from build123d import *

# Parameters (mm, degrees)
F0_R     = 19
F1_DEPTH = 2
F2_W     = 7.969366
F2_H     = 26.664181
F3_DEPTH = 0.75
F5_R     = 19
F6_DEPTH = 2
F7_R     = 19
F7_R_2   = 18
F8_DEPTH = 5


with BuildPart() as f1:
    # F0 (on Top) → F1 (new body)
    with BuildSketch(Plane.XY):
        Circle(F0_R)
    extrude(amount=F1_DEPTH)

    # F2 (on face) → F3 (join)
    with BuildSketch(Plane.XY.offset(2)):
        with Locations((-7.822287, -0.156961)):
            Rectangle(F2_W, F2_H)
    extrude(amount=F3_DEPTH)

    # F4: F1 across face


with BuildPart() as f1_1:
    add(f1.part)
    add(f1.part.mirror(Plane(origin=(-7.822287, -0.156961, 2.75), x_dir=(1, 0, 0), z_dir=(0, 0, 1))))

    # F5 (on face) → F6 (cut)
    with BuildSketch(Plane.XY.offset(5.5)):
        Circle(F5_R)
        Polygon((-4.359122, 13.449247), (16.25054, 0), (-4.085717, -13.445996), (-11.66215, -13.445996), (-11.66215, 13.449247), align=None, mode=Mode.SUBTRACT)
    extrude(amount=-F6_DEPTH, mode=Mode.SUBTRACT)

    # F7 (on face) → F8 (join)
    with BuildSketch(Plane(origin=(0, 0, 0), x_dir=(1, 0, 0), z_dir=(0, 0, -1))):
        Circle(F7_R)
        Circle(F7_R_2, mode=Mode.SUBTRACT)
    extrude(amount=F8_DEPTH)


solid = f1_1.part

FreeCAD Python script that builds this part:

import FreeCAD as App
import Part
import Sketcher
from FreeCAD import Vector
Q = App.Units.Quantity


def add_polygon(sketch, points):
    """Adds a closed chain of lines whose ends are joined by coincident constraints."""
    first, n = sketch.GeometryCount, len(points)
    for a, b in zip(points, points[1:] + points[:1]):
        sketch.addGeometry(Part.LineSegment(App.Vector(*a, 0), App.Vector(*b, 0)), False)
    for i in range(n):
        sketch.addConstraint(Sketcher.Constraint("Coincident", first + i, 2, first + (i + 1) % n, 1))

doc = App.newDocument("Part")
body = doc.addObject("PartDesign::Body", "Body")

sketch1 = body.newObject("Sketcher::SketchObject", "Sketch")
sketch1.AttachmentSupport = (doc.getObject("XY_Plane"), [""])
sketch1.MapMode = "FlatFace"
sketch1.addGeometry(Part.Circle(Vector(0, 0, 0), Vector(0, 0, 1), 19), False)
sketch1.addConstraint(Sketcher.Constraint("Coincident", 0, 3, -1, 1))
sketch1.addConstraint(Sketcher.Constraint("Diameter", 0, Q("38 mm")))
pad1 = body.newObject("PartDesign::Pad", "Pad")
pad1.Profile = sketch1
pad1.Length = 2

sketch2 = body.newObject("Sketcher::SketchObject", "Sketch001")
sketch2.AttachmentSupport = (doc.getObject("XY_Plane"), [""])
sketch2.MapMode = "FlatFace"
sketch2.AttachmentOffset = App.Placement(Vector(0, 0, 2), App.Rotation())
add_polygon(sketch2, [(-11.80697, 13.17513), (-11.80697, -13.489052), (-3.837604, -13.489052), (-3.837604, 13.17513)])
sketch2.addConstraint(Sketcher.Constraint("Vertical", 0))
sketch2.addConstraint(Sketcher.Constraint("Horizontal", 1))
sketch2.addConstraint(Sketcher.Constraint("Vertical", 2))
sketch2.addConstraint(Sketcher.Constraint("Horizontal", 3))
sketch2.addConstraint(Sketcher.Constraint("DistanceY", 0, 2, 0, 1, Q("26.664181 mm")))
sketch2.addConstraint(Sketcher.Constraint("DistanceX", 1, 1, 1, 2, Q("7.969366 mm")))
sketch2.addConstraint(Sketcher.Constraint("DistanceX", 0, 2, -1, 1, Q("11.80697 mm")))
sketch2.addConstraint(Sketcher.Constraint("DistanceY", 0, 2, -1, 1, Q("13.489052 mm")))
pad2 = body.newObject("PartDesign::Pad", "Pad001")
pad2.Profile = sketch2
pad2.Length = 0.75
body2 = doc.addObject("PartDesign::Body", "Body001")
doc.recompute()

body2.BaseFeature = body
doc.recompute()

mirroring = doc.addObject("Part::Mirroring", "Mirroring")
mirroring.Source = body
mirroring.Base = Vector(-7.822287, -0.156961, 2.75)
mirroring.Normal = Vector(0, 0, 1)
body3 = doc.addObject("PartDesign::Body", "Body002")
body3.BaseFeature = mirroring
boolean = body2.newObject("PartDesign::Boolean", "Boolean")
boolean.Type = "Fuse"
boolean.addObjects([body3])
doc.recompute()

sketch3 = body2.newObject("Sketcher::SketchObject", "Sketch002")
sketch3.AttachmentSupport = (doc.getObject("XY_Plane001"), [""])
sketch3.MapMode = "FlatFace"
sketch3.AttachmentOffset = App.Placement(Vector(0, 0, 5.5), App.Rotation())
sketch3.addGeometry(Part.Circle(Vector(0, 0, 0), Vector(0, 0, 1), 19), False)
add_polygon(sketch3, [(-11.66215, 13.449247), (-4.359122, 13.449247), (16.25054, 0), (-4.085717, -13.445996), (-11.66215, -13.445996)])
sketch3.addConstraint(Sketcher.Constraint("Horizontal", 1))
sketch3.addConstraint(Sketcher.Constraint("Horizontal", 4))
sketch3.addConstraint(Sketcher.Constraint("Vertical", 5))
sketch3.addConstraint(Sketcher.Constraint("Coincident", 0, 3, -1, 1))
sketch3.addConstraint(Sketcher.Constraint("PointOnObject", 2, 2, -1))
sketch3.addConstraint(Sketcher.Constraint("Diameter", 0, Q("38 mm")))
sketch3.addConstraint(Sketcher.Constraint("DistanceX", 1, 1, 1, 2, Q("7.303028 mm")))
sketch3.addConstraint(Sketcher.Constraint("Distance", 3, Q("24.379462 mm")))
sketch3.addConstraint(Sketcher.Constraint("DistanceX", 4, 2, 4, 1, Q("7.576433 mm")))
sketch3.addConstraint(Sketcher.Constraint("DistanceY", 5, 1, 5, 2, Q("26.895243 mm")))
sketch3.addConstraint(Sketcher.Constraint("DistanceX", -1, 1, 2, 2, Q("16.25054 mm")))
sketch3.addConstraint(Sketcher.Constraint("DistanceX", 4, 2, -1, 1, Q("11.66215 mm")))
pocket1 = body2.newObject("PartDesign::Pocket", "Pocket")
pocket1.Profile = sketch3
pocket1.Length = 2

sketch4 = body2.newObject("Sketcher::SketchObject", "Sketch003")
sketch4.AttachmentSupport = (doc.getObject("XY_Plane001"), [""])
sketch4.MapMode = "FlatFace"
sketch4.addGeometry(Part.Circle(Vector(0, 0, 0), Vector(0, 0, 1), 19), False)
sketch4.addGeometry(Part.Circle(Vector(0, 0, 0), Vector(0, 0, 1), 18), False)
sketch4.addConstraint(Sketcher.Constraint("Coincident", 0, 3, -1, 1))
sketch4.addConstraint(Sketcher.Constraint("Coincident", 1, 3, -1, 1))
sketch4.addConstraint(Sketcher.Constraint("Diameter", 0, Q("38 mm")))
sketch4.addConstraint(Sketcher.Constraint("Diameter", 1, Q("36 mm")))
pad3 = body2.newObject("PartDesign::Pad", "Pad002")
pad3.Profile = sketch4
pad3.Length = 5
pad3.Reversed = True
mirroring.Visibility = False

doc.recompute()
